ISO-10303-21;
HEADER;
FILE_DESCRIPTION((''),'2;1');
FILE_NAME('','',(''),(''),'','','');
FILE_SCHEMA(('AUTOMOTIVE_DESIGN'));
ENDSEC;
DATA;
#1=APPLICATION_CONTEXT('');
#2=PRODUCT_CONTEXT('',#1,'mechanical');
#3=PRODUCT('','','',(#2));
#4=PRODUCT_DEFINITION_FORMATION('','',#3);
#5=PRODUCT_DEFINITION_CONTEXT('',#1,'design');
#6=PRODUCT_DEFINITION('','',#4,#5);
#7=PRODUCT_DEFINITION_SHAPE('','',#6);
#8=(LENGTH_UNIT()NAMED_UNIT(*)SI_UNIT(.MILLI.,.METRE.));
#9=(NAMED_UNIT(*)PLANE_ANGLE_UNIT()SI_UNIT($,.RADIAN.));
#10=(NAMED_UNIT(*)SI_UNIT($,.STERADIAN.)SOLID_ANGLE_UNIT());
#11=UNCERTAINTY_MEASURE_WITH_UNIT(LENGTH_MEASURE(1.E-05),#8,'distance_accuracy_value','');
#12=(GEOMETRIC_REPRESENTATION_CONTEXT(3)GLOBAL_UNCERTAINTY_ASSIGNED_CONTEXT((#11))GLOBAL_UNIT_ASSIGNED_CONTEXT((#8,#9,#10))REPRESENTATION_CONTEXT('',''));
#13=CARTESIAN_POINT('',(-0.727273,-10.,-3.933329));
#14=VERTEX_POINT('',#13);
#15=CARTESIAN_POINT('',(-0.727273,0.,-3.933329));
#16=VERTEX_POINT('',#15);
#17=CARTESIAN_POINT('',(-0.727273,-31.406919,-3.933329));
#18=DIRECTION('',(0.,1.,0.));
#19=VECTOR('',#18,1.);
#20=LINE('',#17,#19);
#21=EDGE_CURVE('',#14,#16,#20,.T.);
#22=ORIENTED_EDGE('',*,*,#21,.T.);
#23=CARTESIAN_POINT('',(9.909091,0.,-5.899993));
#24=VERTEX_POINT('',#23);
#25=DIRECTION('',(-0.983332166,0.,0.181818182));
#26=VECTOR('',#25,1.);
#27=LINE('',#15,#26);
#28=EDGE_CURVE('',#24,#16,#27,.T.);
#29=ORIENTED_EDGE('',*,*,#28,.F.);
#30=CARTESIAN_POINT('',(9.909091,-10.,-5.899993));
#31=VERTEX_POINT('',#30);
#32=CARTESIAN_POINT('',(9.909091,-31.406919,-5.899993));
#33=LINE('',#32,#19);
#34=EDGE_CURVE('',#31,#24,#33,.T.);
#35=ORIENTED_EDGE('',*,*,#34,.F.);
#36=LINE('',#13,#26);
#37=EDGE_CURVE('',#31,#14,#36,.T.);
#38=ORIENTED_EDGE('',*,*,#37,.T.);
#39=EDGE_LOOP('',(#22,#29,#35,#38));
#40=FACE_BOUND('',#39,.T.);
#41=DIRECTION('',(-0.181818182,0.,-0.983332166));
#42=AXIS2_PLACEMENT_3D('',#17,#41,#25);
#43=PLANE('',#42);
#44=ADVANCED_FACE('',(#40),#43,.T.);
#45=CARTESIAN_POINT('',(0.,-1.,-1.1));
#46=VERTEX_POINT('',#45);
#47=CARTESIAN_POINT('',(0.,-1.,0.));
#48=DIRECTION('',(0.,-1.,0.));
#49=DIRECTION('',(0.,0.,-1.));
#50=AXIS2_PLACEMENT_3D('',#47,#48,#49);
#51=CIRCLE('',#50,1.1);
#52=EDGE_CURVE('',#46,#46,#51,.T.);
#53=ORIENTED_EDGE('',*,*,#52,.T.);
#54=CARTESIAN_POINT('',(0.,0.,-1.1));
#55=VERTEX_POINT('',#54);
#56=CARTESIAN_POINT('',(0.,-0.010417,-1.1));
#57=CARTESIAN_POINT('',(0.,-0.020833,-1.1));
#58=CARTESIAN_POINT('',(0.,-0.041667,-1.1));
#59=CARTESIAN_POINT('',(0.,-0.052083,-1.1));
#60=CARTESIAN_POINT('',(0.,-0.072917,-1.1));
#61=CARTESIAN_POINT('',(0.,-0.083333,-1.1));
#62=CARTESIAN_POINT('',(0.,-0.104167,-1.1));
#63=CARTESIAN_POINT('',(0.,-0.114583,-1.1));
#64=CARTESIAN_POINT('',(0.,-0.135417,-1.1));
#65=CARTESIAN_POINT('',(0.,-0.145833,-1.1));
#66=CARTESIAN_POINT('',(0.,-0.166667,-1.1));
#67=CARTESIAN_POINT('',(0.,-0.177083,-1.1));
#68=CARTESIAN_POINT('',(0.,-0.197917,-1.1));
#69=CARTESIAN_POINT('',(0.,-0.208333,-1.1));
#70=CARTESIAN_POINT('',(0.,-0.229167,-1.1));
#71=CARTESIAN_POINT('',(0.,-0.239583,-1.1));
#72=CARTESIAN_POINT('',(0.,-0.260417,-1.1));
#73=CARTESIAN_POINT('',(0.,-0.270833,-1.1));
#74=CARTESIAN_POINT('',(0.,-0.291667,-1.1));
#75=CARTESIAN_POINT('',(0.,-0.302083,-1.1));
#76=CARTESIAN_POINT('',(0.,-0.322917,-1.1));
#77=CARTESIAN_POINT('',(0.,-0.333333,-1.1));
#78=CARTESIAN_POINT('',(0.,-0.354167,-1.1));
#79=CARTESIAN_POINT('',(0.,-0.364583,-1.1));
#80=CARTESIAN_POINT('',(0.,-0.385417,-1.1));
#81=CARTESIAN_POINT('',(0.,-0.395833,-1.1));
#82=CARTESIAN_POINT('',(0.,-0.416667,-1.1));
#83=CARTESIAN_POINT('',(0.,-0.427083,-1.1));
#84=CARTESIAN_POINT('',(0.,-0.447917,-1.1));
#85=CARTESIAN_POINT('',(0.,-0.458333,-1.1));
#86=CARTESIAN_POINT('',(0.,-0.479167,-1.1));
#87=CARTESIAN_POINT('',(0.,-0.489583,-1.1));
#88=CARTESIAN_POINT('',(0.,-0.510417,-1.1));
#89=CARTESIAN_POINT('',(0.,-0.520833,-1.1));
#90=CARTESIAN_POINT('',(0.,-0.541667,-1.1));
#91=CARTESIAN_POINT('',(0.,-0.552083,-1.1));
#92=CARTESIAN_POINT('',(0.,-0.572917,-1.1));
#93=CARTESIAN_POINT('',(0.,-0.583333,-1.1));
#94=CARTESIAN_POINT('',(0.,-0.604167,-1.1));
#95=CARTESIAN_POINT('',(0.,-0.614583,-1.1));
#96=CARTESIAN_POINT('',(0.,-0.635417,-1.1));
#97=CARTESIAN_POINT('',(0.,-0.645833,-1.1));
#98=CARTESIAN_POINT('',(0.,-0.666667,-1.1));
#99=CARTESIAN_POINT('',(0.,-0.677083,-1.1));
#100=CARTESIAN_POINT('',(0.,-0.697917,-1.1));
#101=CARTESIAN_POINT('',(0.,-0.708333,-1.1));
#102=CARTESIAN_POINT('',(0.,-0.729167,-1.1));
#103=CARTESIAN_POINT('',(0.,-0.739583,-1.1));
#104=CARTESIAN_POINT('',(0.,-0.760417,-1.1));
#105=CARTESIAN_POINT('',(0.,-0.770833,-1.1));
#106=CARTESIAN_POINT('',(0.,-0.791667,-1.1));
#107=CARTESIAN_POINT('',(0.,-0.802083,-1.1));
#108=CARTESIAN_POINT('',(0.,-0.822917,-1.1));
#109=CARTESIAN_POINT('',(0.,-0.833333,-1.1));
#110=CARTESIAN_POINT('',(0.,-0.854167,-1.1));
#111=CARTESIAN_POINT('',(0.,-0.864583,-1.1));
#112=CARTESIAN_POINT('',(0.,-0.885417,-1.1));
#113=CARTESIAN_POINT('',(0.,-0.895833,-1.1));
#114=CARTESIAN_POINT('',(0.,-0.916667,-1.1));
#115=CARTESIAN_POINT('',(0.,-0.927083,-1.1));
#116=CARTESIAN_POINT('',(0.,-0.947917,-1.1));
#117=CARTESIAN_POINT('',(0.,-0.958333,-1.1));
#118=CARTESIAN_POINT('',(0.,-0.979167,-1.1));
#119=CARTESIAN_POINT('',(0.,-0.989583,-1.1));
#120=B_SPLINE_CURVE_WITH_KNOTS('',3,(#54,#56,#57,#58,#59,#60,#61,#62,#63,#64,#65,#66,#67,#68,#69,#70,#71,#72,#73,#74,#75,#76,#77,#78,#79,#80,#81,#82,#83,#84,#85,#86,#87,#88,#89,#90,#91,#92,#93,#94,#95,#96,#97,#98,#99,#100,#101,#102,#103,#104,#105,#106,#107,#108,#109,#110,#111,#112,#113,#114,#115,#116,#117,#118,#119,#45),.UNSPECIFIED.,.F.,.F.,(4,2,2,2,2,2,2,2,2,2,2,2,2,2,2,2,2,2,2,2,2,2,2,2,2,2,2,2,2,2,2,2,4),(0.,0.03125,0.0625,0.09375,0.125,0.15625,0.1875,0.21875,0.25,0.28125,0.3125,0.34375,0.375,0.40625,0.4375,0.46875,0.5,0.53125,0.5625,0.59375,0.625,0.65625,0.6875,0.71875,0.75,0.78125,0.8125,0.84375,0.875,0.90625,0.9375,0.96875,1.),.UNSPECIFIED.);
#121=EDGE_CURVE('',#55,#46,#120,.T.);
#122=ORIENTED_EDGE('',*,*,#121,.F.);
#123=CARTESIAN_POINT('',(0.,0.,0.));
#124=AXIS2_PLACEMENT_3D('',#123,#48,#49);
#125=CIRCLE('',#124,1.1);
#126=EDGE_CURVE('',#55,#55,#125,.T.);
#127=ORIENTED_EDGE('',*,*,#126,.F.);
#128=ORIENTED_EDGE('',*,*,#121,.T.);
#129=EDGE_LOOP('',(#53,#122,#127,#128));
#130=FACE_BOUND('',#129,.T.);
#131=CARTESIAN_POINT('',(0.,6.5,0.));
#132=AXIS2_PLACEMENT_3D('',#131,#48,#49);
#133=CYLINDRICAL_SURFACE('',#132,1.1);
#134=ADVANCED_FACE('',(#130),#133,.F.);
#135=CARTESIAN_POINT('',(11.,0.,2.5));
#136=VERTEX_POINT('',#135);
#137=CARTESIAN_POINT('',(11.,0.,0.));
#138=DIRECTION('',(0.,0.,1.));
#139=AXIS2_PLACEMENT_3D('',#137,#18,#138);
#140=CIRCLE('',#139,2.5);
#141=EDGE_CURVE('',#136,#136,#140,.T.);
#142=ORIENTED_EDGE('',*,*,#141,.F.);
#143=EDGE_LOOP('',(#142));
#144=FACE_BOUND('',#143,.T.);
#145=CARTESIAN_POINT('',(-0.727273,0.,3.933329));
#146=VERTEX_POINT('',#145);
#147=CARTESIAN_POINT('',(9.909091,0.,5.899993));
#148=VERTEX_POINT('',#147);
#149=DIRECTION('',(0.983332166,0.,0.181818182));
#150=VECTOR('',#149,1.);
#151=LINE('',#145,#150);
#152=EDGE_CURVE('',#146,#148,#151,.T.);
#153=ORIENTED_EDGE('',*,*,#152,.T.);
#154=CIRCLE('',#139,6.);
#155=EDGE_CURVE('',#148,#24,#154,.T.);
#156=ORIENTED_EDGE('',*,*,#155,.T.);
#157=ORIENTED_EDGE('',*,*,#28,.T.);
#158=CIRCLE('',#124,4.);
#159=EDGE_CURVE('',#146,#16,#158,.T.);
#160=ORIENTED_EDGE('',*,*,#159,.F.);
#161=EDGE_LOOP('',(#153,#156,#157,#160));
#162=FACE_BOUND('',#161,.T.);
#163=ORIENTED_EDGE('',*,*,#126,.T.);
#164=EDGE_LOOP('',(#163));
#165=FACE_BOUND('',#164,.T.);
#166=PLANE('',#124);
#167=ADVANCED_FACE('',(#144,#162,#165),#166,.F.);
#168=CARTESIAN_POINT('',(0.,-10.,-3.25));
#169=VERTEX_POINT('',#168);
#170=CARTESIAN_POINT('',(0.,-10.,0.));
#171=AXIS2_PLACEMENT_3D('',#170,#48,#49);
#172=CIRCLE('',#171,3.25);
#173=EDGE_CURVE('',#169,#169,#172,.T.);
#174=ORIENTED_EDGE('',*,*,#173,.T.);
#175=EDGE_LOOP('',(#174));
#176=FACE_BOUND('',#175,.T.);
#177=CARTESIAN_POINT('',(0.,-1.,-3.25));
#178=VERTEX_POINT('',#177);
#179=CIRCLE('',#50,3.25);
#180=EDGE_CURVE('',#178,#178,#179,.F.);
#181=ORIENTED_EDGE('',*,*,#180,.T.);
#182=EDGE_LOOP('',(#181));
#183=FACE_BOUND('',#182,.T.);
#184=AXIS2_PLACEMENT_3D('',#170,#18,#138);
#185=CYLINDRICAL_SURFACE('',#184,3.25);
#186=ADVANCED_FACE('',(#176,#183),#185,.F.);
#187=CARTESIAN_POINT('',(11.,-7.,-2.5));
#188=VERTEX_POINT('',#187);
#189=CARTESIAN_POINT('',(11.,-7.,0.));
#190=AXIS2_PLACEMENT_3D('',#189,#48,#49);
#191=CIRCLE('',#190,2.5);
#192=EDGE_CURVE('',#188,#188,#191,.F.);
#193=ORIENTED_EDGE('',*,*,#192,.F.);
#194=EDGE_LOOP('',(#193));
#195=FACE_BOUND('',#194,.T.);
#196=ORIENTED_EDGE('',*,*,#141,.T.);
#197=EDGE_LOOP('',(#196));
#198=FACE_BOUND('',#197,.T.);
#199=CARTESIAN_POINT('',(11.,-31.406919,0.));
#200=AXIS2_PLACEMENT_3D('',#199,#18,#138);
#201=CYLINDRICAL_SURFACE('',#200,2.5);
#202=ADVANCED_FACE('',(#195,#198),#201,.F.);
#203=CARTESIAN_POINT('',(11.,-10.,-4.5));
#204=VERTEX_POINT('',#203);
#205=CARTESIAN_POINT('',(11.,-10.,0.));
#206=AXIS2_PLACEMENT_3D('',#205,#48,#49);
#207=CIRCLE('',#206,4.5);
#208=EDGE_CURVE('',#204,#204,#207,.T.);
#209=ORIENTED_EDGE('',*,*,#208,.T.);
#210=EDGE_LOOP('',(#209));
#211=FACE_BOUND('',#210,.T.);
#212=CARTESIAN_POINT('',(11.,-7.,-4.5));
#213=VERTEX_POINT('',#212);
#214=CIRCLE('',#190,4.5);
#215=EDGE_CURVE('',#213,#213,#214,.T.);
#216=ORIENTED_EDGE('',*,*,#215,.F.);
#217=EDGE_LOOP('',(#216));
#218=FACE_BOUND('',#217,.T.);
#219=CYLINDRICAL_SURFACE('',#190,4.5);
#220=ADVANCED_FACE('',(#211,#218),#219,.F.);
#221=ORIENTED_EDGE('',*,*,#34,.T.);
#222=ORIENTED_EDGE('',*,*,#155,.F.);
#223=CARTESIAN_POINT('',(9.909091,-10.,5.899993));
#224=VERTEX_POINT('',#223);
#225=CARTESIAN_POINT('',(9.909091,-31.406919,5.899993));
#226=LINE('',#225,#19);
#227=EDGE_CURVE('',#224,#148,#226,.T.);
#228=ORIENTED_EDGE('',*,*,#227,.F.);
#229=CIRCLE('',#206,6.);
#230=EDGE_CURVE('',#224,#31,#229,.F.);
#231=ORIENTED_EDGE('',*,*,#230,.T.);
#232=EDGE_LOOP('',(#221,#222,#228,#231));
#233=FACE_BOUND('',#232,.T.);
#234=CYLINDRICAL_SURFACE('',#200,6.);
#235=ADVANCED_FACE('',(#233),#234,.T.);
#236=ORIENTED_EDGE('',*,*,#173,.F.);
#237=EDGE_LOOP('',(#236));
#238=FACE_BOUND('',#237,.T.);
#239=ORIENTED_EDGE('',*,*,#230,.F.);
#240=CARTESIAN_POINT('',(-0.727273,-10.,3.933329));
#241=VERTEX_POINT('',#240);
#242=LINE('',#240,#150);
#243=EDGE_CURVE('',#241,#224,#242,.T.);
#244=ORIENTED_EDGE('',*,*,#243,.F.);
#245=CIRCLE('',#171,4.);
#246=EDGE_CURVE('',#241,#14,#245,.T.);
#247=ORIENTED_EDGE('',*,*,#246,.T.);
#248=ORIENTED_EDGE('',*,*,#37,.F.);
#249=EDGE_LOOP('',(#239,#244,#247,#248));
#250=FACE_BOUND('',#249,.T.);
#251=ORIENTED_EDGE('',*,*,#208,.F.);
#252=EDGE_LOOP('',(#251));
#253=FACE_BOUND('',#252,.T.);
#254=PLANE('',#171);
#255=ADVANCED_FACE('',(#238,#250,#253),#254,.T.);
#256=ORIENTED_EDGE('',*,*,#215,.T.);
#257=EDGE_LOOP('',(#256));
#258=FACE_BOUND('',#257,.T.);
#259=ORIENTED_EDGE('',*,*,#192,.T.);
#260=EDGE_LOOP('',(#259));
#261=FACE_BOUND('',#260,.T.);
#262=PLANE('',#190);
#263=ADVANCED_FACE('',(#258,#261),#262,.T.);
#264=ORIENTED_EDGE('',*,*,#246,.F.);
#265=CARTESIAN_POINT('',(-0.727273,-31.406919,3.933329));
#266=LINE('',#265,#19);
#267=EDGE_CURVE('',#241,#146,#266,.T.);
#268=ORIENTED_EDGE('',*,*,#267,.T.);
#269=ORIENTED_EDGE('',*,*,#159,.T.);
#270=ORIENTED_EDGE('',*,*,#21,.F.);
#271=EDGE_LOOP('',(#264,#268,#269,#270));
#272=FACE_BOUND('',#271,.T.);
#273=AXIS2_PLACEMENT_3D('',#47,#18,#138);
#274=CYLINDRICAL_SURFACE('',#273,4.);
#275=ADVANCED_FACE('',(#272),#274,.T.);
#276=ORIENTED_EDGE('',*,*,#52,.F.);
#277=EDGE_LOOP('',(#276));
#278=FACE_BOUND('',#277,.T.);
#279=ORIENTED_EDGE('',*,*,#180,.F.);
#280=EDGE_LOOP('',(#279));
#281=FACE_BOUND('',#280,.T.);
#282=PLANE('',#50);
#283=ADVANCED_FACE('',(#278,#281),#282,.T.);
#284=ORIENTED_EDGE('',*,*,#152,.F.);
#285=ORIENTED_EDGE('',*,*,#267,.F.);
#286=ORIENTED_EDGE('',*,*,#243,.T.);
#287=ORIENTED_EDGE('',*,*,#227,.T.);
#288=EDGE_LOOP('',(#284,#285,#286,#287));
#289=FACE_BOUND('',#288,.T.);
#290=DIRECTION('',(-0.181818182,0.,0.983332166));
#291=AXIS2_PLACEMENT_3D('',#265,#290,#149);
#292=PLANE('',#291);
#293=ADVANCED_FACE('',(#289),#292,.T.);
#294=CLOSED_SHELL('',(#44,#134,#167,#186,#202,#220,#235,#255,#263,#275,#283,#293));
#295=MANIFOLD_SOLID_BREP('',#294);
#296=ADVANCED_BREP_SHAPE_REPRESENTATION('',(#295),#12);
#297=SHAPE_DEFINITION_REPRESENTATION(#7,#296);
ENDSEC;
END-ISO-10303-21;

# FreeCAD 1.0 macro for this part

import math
import FreeCAD as App
import Part
import Sketcher

V = App.Vector
Q = App.Units.Quantity

doc = App.newDocument("Part")
body = doc.addObject("PartDesign::Body", "Body")

sketch1 = doc.addObject("Sketcher::SketchObject", "Sketch")
body.addObject(sketch1)
sketch1.AttachmentSupport = (doc.XZ_Plane, [""])
sketch1.MapMode = "FlatFace"
sketch1.addGeometry([
    Part.Circle(V(0, 0, 0), V(0, 0, 1), 1.5),
    Part.Circle(V(0, 0, 0), V(0, 0, 1), 1.1),
], False)
sketch1.addConstraint([
    Sketcher.Constraint("Coincident", 0, 3, -1, 1),
    Sketcher.Constraint("Coincident", 1, 3, -1, 1),
    Sketcher.Constraint("Diameter", 0, Q("3 mm")),
    Sketcher.Constraint("Diameter", 1, Q("2.2 mm")),
])
pad1 = doc.addObject("PartDesign::Pad", "Pad")
body.addObject(pad1)
pad1.Profile = sketch1
pad1.Length = 6.5
pad1.Reversed = True

sketch2 = doc.addObject("Sketcher::SketchObject", "Sketch001")
body.addObject(sketch2)
sketch2.AttachmentSupport = (doc.XZ_Plane, [""])
sketch2.MapMode = "FlatFace"
sketch2.AttachmentOffset = App.Placement(V(0, 0, 1), App.Rotation())
sketch2.addGeometry([
    Part.Circle(V(0, 0, 0), V(0, 0, 1), 4),
    Part.Circle(V(0, 0, 0), V(0, 0, 1), 1.1),
], False)
sketch2.addConstraint([
    Sketcher.Constraint("Coincident", 0, 3, -1, 1),
    Sketcher.Constraint("Coincident", 1, 3, -1, 1),
    Sketcher.Constraint("Diameter", 0, Q("8 mm")),
    Sketcher.Constraint("Diameter", 1, Q("2.2 mm")),
])
pad2 = doc.addObject("PartDesign::Pad", "Pad001")
body.addObject(pad2)
pad2.Profile = sketch2
pad2.Length = 1
pad2.Reversed = True

sketch3 = doc.addObject("Sketcher::SketchObject", "Sketch002")
body.addObject(sketch3)
sketch3.AttachmentSupport = (doc.XZ_Plane, [""])
sketch3.MapMode = "FlatFace"
sketch3.AttachmentOffset = App.Placement(V(0, 0, 10), App.Rotation())
sketch3.addGeometry([
    Part.Circle(V(0, 0, 0), V(0, 0, 1), 4),
    Part.Circle(V(0, 0, 0), V(0, 0, 1), 3.2),
], False)
sketch3.addConstraint([
    Sketcher.Constraint("Coincident", 0, 3, -1, 1),
    Sketcher.Constraint("Coincident", 1, 3, -1, 1),
    Sketcher.Constraint("Diameter", 0, Q("8 mm")),
    Sketcher.Constraint("Diameter", 1, Q("6.5 mm")),
])
pad3 = doc.addObject("PartDesign::Pad", "Pad002")
body.addObject(pad3)
pad3.Profile = sketch3
pad3.Length = 9
pad3.Reversed = True

sketch4 = doc.addObject("Sketcher::SketchObject", "Sketch003")
body.addObject(sketch4)
sketch4.AttachmentSupport = (doc.XZ_Plane, [""])
sketch4.MapMode = "FlatFace"
sketch4.AttachmentOffset = App.Placement(V(0, 0, 10), App.Rotation())
sketch4.addGeometry([
    Part.ArcOfCircle(Part.Circle(V(0, 0, 0), V(0, 0, 1), 4), math.radians(-100), math.radians(100)),
    Part.LineSegment(V(-0.7, 3.9, 0), V(9.9, 5.9, 0)),
    Part.ArcOfCircle(Part.Circle(V(11, 0, 0), V(0, 0, 1), 6), math.radians(-100), math.radians(100)),
    Part.LineSegment(V(9.9, -5.9, 0), V(-0.7, -3.9, 0)),
    Part.Circle(V(11, 0, 0), V(0, 0, 1), 2.5),
], False)
sketch4.addConstraint([
    Sketcher.Constraint("Tangent", 0, 2, 1, 1),
    Sketcher.Constraint("Tangent", 1, 2, 2, 2),
    Sketcher.Constraint("Tangent", 2, 1, 3, 1),
    Sketcher.Constraint("Tangent", 3, 2, 0, 1),
    Sketcher.Constraint("Coincident", 0, 3, -1, 1),
    Sketcher.Constraint("Coincident", 4, 3, 2, 3),
    Sketcher.Constraint("PointOnObject", 2, 3, -1),
    Sketcher.Constraint("Diameter", 4, Q("5 mm")),
    Sketcher.Constraint("Radius", 0, Q("4 mm")),
    Sketcher.Constraint("Radius", 2, Q("6 mm")),
    Sketcher.Constraint("DistanceX", -1, 1, 2, 3, Q("11 mm")),
])
pad4 = doc.addObject("PartDesign::Pad", "Pad003")
body.addObject(pad4)
pad4.Profile = sketch4
pad4.Length = 10
pad4.Reversed = True

sketch5 = doc.addObject("Sketcher::SketchObject", "Sketch004")
body.addObject(sketch5)
sketch5.AttachmentSupport = (doc.XZ_Plane, [""])
sketch5.MapMode = "FlatFace"
sketch5.AttachmentOffset = App.Placement(V(0, 0, 10), App.Rotation())
sketch5.addGeometry(Part.Circle(V(11, 0, 0), V(0, 0, 1), 4.5), False)
sketch5.addConstraint([
    Sketcher.Constraint("PointOnObject", 0, 3, -1),
    Sketcher.Constraint("Diameter", 0, Q("9 mm")),
    Sketcher.Constraint("DistanceX", -1, 1, 0, 3, Q("11 mm")),
])
pocket1 = doc.addObject("PartDesign::Pocket", "Pocket")
body.addObject(pocket1)
pocket1.Profile = sketch5
pocket1.Length = 3

sketch6 = doc.addObject("Sketcher::SketchObject", "Sketch005")
body.addObject(sketch6)
sketch6.AttachmentSupport = (doc.XZ_Plane, [""])
sketch6.MapMode = "FlatFace"
sketch6.addGeometry(Part.Circle(V(0, 0, 0), V(0, 0, 1), 1.5), False)
sketch6.addConstraint([
    Sketcher.Constraint("Coincident", 0, 3, -1, 1),
    Sketcher.Constraint("Diameter", 0, Q("3 mm")),
])
pocket2 = doc.addObject("PartDesign::Pocket", "Pocket001")
body.addObject(pocket2)
pocket2.Profile = sketch6
pocket2.Length = 6.5

doc.recompute()
